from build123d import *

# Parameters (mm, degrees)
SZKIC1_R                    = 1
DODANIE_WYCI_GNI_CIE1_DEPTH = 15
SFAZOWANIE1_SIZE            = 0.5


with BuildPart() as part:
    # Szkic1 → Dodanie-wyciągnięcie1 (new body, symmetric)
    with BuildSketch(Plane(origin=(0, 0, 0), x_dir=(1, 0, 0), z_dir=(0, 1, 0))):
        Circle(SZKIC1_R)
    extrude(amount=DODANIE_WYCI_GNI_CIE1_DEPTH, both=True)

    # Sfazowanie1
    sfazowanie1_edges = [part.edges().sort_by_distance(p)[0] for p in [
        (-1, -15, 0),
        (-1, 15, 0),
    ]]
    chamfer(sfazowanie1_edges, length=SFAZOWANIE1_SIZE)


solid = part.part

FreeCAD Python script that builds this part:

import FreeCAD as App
import Part
import Sketcher
Q = App.Units.Quantity


def edges_at(feature, points):
    """Names of the edges that pass closest to the given points."""
    edges = feature.Shape.Edges
    near = lambda p: min(range(len(edges)), key=lambda i: edges[i].distToShape(Part.Vertex(*p))[0])
    return sorted({f"Edge{near(p) + 1}" for p in points})

doc = App.newDocument("Part")
body = doc.addObject("PartDesign::Body", "Body")

# Sketch on XZ plane
sketch1 = doc.addObject("Sketcher::SketchObject", "Sketch")
body.addObject(sketch1)
sketch1.AttachmentSupport = (doc.XZ_Plane, [""])
sketch1.MapMode = "FlatFace"
sketch1.addGeometry(Part.Circle(App.Vector(0, 0, 0), App.Vector(0, 0, 1), 1), False)
sketch1.addConstraint(Sketcher.Constraint("Coincident", 0, 3, -1, 1))
sketch1.addConstraint(Sketcher.Constraint("Diameter", 0, Q("2 mm")))
pad1 = doc.addObject("PartDesign::Pad", "Pad")
body.addObject(pad1)
pad1.Profile = sketch1
pad1.Length = 30
pad1.Midplane = True
doc.recompute()

chamfer = doc.addObject("PartDesign::Chamfer", "Chamfer")
body.addObject(chamfer)
chamfer.Base = (pad1, edges_at(pad1, [(-1, -15, 0), (-1, 15, 0)]))
chamfer.Size = 0.5

doc.recompute()
